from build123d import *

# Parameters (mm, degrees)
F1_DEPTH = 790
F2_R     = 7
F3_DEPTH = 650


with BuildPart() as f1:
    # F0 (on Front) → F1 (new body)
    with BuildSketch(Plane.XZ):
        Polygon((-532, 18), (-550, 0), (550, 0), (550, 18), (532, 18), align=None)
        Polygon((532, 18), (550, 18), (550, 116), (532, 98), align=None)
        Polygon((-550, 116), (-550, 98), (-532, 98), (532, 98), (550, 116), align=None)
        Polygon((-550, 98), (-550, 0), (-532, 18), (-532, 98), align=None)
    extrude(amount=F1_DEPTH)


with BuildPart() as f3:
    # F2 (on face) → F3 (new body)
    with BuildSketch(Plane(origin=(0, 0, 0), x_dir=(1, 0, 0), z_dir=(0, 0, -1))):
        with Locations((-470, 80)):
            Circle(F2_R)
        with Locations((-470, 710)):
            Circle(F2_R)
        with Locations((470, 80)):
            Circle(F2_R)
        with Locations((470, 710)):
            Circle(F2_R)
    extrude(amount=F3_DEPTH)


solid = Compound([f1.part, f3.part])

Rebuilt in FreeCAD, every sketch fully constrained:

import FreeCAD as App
import Part
import Sketcher

V = App.Vector


def add_polygon(sketch, points):
    """Adds a closed chain of lines whose ends are joined by coincident constraints."""
    first, n = sketch.GeometryCount, len(points)
    for a, b in zip(points, points[1:] + points[:1]):
        sketch.addGeometry(Part.LineSegment(App.Vector(*a, 0), App.Vector(*b, 0)), False)
    for i in range(n):
        sketch.addConstraint(Sketcher.Constraint("Coincident", first + i, 2, first + (i + 1) % n, 1))

doc = App.newDocument("Part")
body = doc.addObject("PartDesign::Body", "Body")

# Sketch on XZ plane
sketch1 = doc.addObject("Sketcher::SketchObject", "Sketch")
body.addObject(sketch1)
sketch1.AttachmentSupport = (doc.XZ_Plane, [""])
sketch1.MapMode = "FlatFace"
add_polygon(sketch1, [(-550, 0), (550, 0), (550, 116), (-550, 116)])  # lines 0-3
add_polygon(sketch1, [(-532, 98), (532, 98), (532, 18), (-532, 18)])  # lines 4-7
sketch1.addConstraint([
    Sketcher.Constraint("Horizontal", 0),
    Sketcher.Constraint("Vertical", 1),
    Sketcher.Constraint("Horizontal", 2),
    Sketcher.Constraint("Vertical", 3),
    Sketcher.Constraint("Horizontal", 4),
    Sketcher.Constraint("Vertical", 5),
    Sketcher.Constraint("Horizontal", 6),
    Sketcher.Constraint("Vertical", 7),
    Sketcher.Constraint("Symmetric", 0, 2, 3, 2, -1, 1),
    Sketcher.Constraint("DistanceX", 0, 1, 0, 2, 1100.0),
    Sketcher.Constraint("DistanceX", 4, 1, 4, 2, 1064.0),
    Sketcher.Constraint("DistanceY", 1, 1, 1, 2, 116.0),
    Sketcher.Constraint("DistanceY", 5, 2, 5, 1, 80.0),
    Sketcher.Constraint("DistanceX", -1, 1, 4, 2, 532.0),
    Sketcher.Constraint("DistanceY", -1, 1, 4, 2, 98.0),
])
pad1 = doc.addObject("PartDesign::Pad", "Pad")
body.addObject(pad1)
pad1.Profile = sketch1
pad1.Length = 790
body2 = doc.addObject("PartDesign::Body", "Body001")
body2.AllowCompound = True

# Sketch on XY plane
sketch2 = doc.addObject("Sketcher::SketchObject", "Sketch001")
body2.addObject(sketch2)
sketch2.AttachmentSupport = (doc.getObject("XY_Plane001"), [""])
sketch2.MapMode = "FlatFace"
sketch2.addGeometry([
    Part.Circle(V(-470, -80, 0), V(0, 0, 1), 7),
    Part.Circle(V(-470, -710, 0), V(0, 0, 1), 7),
    Part.Circle(V(470, -80, 0), V(0, 0, 1), 7),
    Part.Circle(V(470, -710, 0), V(0, 0, 1), 7),
], False)
sketch2.addConstraint([
    Sketcher.Constraint("Equal", 0, 1),
    Sketcher.Constraint("Equal", 1, 2),
    Sketcher.Constraint("Equal", 2, 3),
    Sketcher.Constraint("Symmetric", 0, 3, 2, 3, -2),
    Sketcher.Constraint("Symmetric", 1, 3, 3, 3, -2),
    Sketcher.Constraint("Vertical", 0, 3, 1, 3),
    Sketcher.Constraint("Diameter", 0, 14.0),
    Sketcher.Constraint("DistanceX", 0, 3, -1, 1, 470.0),
    Sketcher.Constraint("DistanceY", 0, 3, -1, 1, 80.0),
    Sketcher.Constraint("DistanceY", 1, 3, -1, 1, 710.0),
])
pad2 = doc.addObject("PartDesign::Pad", "Pad001")
body2.addObject(pad2)
pad2.Profile = sketch2
pad2.Length = 650
pad2.Reversed = True

doc.recompute()
